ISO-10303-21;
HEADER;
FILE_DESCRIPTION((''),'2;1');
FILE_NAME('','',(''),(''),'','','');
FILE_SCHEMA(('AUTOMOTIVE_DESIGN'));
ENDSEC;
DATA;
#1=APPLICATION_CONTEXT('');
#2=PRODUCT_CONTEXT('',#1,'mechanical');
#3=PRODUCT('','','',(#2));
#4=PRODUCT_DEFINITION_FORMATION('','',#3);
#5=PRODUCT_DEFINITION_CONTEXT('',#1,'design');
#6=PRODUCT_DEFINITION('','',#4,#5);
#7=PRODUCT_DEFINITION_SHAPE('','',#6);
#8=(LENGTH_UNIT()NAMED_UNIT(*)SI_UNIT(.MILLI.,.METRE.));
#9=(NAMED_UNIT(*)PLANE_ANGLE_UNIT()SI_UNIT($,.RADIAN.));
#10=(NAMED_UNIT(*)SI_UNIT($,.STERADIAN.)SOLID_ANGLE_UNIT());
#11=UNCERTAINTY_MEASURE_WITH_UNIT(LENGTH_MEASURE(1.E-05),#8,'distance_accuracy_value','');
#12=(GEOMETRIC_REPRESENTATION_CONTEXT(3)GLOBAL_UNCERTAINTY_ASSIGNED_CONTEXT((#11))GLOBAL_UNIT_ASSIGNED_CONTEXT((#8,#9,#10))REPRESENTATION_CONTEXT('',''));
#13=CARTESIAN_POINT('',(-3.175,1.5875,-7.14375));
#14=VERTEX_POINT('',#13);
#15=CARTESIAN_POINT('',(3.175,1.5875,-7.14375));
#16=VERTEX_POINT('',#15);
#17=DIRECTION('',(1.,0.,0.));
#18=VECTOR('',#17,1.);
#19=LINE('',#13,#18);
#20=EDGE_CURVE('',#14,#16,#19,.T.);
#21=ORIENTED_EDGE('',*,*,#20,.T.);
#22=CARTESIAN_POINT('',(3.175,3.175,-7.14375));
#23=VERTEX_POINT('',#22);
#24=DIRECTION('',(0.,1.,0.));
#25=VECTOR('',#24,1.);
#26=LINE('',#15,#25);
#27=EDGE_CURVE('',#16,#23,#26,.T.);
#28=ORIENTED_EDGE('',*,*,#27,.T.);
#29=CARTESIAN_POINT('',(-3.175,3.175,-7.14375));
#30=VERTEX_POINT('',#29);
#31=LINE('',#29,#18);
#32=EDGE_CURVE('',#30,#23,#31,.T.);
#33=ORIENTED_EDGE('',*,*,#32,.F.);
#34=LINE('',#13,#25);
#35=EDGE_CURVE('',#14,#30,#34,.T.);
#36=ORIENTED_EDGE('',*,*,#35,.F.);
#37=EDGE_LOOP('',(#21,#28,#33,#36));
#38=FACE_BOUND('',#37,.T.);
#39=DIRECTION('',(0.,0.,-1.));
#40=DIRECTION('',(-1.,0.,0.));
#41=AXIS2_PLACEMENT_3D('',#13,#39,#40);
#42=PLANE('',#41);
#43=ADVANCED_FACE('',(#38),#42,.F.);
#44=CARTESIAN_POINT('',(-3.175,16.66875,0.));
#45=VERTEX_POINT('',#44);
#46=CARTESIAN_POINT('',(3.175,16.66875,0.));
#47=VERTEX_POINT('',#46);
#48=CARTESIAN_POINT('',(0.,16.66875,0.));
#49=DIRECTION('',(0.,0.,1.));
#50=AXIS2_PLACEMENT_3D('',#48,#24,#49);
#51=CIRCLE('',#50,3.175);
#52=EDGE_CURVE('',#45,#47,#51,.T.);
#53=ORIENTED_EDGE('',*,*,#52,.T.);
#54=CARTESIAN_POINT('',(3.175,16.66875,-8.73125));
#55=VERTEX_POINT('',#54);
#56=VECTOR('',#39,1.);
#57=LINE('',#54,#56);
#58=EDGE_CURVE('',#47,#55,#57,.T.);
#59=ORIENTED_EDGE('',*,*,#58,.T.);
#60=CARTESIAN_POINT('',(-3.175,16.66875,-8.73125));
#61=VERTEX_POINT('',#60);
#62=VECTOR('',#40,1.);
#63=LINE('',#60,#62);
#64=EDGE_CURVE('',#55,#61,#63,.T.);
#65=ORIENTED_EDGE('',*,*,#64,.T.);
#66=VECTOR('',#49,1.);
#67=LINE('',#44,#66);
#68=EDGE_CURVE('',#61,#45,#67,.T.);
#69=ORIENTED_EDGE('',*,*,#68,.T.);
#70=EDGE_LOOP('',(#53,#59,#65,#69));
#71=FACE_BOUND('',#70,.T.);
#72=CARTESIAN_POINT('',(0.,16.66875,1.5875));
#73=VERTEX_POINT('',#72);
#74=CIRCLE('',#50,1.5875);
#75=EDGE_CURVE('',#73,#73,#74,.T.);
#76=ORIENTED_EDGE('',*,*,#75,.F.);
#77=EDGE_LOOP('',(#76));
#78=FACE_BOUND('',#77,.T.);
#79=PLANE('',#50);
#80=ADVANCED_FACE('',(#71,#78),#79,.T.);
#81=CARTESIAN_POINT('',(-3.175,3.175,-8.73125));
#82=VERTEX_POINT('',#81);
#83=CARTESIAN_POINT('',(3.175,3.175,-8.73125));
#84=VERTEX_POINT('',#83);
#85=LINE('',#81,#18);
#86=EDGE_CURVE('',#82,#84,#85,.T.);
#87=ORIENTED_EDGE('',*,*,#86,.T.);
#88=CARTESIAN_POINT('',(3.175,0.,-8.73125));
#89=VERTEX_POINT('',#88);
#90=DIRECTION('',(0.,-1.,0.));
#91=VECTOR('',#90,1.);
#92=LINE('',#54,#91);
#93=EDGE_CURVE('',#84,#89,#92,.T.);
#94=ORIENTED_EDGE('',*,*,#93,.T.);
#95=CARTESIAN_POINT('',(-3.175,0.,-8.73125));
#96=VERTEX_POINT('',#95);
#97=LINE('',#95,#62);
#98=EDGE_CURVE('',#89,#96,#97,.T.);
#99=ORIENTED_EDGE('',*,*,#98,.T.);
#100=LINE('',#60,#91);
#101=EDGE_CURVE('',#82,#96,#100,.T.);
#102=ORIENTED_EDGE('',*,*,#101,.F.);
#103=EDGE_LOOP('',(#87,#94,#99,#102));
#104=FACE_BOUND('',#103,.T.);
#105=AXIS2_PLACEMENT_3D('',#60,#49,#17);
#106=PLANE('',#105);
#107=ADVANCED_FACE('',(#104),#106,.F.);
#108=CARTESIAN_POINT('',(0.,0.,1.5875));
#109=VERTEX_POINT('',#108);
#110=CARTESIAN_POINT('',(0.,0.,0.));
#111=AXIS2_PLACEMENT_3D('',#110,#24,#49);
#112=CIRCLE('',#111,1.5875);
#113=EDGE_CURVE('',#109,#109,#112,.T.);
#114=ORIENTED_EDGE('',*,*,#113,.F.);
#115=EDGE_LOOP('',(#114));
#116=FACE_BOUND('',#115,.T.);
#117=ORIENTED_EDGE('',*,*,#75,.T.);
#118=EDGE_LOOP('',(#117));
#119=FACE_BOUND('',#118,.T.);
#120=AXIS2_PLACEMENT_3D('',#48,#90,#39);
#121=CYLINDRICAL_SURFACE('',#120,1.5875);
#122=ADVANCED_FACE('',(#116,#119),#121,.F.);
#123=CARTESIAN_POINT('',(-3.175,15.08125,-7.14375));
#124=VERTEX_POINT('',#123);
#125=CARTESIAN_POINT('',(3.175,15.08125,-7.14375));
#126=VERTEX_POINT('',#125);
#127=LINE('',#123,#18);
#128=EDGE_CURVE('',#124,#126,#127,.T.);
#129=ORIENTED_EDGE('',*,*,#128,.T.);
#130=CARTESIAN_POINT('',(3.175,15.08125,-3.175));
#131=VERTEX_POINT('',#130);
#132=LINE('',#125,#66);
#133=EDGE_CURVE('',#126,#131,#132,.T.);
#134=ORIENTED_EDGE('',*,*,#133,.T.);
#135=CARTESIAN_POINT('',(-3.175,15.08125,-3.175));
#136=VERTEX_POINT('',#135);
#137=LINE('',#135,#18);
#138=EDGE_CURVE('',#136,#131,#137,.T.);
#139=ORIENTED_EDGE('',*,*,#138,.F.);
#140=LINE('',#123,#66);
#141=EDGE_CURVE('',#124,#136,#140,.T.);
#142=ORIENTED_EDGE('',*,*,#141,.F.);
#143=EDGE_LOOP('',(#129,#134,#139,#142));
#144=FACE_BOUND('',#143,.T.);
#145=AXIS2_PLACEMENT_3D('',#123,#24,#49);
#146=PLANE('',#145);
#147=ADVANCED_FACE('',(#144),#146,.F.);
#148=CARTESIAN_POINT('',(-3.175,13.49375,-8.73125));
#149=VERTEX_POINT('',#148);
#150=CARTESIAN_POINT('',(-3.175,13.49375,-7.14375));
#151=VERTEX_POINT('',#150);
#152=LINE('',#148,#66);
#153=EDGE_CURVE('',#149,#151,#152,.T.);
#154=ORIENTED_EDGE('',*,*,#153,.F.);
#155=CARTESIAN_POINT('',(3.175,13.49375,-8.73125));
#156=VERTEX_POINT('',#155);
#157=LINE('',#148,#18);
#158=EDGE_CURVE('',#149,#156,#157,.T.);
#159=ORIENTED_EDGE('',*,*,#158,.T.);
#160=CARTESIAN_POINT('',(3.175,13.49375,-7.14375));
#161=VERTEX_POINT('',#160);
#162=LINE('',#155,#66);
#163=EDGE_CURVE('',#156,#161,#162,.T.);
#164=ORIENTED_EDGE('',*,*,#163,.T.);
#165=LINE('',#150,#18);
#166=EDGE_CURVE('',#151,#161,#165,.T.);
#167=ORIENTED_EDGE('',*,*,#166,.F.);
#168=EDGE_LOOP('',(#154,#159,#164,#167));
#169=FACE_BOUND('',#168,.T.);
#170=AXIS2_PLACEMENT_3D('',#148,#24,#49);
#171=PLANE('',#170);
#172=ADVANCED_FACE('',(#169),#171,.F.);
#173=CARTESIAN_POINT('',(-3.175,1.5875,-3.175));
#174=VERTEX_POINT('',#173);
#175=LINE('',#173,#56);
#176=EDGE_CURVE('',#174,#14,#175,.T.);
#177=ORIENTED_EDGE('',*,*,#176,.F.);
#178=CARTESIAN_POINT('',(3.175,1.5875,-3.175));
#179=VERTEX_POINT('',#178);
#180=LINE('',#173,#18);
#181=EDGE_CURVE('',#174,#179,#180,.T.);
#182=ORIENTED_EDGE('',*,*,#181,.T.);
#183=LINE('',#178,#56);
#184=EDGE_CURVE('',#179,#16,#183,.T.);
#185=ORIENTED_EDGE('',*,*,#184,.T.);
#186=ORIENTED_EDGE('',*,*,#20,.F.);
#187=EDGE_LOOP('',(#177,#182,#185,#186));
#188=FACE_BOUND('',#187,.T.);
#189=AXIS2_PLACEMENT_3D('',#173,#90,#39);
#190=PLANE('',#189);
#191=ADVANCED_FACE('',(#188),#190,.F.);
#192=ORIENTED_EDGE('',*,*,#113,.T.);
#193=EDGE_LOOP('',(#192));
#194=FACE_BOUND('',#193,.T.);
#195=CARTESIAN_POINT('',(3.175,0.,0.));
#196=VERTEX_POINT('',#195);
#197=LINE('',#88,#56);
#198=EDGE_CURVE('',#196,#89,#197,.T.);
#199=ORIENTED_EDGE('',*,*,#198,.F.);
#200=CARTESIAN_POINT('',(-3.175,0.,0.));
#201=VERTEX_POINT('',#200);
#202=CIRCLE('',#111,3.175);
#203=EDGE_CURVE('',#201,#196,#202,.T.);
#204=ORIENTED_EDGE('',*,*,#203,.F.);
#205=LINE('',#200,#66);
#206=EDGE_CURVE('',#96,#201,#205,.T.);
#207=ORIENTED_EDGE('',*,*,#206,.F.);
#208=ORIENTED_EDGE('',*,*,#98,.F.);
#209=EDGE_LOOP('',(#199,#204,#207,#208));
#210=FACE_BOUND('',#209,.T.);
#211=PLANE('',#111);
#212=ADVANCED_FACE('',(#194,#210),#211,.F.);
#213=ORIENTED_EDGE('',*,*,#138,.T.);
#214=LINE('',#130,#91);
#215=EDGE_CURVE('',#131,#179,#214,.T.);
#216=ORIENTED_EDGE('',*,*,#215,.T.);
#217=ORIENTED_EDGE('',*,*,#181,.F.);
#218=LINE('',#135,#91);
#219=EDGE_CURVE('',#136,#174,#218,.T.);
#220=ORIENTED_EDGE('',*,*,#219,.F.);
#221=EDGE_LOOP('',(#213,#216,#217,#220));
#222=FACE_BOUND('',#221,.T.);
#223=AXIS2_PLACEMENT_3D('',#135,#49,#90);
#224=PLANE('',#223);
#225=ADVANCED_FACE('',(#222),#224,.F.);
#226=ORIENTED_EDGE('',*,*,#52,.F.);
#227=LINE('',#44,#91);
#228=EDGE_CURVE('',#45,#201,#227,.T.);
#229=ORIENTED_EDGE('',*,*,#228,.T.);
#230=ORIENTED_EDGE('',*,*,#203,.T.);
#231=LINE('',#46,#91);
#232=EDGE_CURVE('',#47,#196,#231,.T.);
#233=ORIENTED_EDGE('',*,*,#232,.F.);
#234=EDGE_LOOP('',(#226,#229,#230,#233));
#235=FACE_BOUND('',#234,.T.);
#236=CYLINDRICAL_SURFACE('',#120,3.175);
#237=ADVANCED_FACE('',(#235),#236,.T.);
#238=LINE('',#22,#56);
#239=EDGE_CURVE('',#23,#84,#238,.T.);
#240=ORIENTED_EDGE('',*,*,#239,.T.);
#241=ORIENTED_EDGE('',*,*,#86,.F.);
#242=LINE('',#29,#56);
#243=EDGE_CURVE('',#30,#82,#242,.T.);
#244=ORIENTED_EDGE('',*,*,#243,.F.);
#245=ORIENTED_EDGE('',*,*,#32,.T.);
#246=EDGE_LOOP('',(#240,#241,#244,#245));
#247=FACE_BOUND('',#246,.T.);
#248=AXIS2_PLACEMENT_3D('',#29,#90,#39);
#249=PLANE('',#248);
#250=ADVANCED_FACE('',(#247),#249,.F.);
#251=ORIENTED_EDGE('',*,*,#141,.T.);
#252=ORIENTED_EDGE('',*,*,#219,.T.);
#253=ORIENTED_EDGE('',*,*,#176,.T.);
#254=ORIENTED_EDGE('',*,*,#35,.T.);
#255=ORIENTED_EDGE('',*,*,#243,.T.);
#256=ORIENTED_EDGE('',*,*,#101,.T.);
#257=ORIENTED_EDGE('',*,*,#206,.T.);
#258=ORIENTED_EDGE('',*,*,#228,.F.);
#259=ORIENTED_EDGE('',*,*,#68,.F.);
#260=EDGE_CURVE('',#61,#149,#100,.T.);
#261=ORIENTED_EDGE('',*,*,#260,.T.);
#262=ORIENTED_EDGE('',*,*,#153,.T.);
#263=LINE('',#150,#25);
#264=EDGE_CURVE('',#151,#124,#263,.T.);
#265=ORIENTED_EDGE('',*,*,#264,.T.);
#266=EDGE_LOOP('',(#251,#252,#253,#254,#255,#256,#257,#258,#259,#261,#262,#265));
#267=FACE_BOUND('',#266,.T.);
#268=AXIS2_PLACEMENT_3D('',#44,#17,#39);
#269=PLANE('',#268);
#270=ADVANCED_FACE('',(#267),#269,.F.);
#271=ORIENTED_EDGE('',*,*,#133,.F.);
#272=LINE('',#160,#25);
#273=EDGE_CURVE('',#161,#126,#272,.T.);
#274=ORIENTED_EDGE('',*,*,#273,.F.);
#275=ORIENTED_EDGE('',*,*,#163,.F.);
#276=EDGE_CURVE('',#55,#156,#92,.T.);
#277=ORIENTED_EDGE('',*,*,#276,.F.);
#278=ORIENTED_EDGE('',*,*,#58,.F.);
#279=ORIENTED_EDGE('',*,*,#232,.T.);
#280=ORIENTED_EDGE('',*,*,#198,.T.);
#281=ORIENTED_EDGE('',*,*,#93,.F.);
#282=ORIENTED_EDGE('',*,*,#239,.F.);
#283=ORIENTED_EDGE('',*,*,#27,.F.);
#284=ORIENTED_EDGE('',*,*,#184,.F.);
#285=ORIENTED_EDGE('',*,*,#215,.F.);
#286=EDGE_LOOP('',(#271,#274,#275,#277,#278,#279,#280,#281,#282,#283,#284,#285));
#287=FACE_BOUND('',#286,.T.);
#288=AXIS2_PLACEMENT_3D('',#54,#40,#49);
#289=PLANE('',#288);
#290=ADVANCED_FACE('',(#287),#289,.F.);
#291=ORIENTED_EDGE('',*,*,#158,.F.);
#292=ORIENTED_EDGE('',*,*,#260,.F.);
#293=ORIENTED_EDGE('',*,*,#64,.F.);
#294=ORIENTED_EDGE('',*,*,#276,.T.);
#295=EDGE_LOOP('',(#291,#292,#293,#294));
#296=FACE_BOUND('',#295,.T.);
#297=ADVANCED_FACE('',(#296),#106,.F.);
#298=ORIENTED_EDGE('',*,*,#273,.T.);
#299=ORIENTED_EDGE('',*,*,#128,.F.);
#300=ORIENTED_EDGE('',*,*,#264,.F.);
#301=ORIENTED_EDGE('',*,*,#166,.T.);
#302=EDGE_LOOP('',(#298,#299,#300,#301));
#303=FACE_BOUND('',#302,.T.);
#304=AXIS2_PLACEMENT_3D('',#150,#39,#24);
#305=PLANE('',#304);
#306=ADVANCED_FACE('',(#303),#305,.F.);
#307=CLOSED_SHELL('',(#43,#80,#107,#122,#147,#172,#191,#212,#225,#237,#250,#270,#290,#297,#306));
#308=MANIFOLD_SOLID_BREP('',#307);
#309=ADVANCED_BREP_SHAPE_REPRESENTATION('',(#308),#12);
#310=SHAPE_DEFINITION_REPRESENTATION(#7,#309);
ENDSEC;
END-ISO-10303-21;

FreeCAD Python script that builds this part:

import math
import FreeCAD as App
import Part
import Sketcher
from FreeCAD import Vector
Q = App.Units.Quantity


def add_polygon(sketch, points):
    """Adds a closed chain of lines whose ends are joined by coincident constraints."""
    first, n = sketch.GeometryCount, len(points)
    for a, b in zip(points, points[1:] + points[:1]):
        sketch.addGeometry(Part.LineSegment(App.Vector(*a, 0), App.Vector(*b, 0)), False)
    for i in range(n):
        sketch.addConstraint(Sketcher.Constraint("Coincident", first + i, 2, first + (i + 1) % n, 1))

doc = App.newDocument("Part")
body = doc.addObject("PartDesign::Body", "Body")

sketch1 = doc.addObject("Sketcher::SketchObject", "Sketch")
body.addObject(sketch1)
sketch1.AttachmentSupport = (doc.XZ_Plane, [""])
sketch1.MapMode = "FlatFace"
sketch1.addGeometry([
    Part.LineSegment(Vector(-3.175, -8.73125, 0), Vector(-3.175, 0, 0)),
    Part.ArcOfCircle(Part.Circle(Vector(0, 0, 0), Vector(0, 0, 1), 3.175), math.radians(0), math.radians(180)),
    Part.LineSegment(Vector(3.175, 0, 0), Vector(3.175, -8.73125, 0)),
    Part.LineSegment(Vector(3.175, -8.73125, 0), Vector(-3.175, -8.73125, 0)),
    Part.Circle(Vector(0, 0, 0), Vector(0, 0, 1), 1.5875),
], False)
sketch1.addConstraint([
    Sketcher.Constraint("Tangent", 0, 2, 1, 2),
    Sketcher.Constraint("Tangent", 1, 1, 2, 1),
    Sketcher.Constraint("Coincident", 2, 2, 3, 1),
    Sketcher.Constraint("Coincident", 3, 2, 0, 1),
    Sketcher.Constraint("Vertical", 0),
    Sketcher.Constraint("Vertical", 2),
    Sketcher.Constraint("Horizontal", 3),
    Sketcher.Constraint("Coincident", 1, 3, -1, 1),
    Sketcher.Constraint("Coincident", 4, 3, -1, 1),
    Sketcher.Constraint("Diameter", 4, Q("0.125 in")),
    Sketcher.Constraint("Radius", 1, Q("0.125 in")),
    Sketcher.Constraint("DistanceY", 0, 1, 0, 2, Q("0.34375 in")),
])
pad1 = doc.addObject("PartDesign::Pad", "Pad")
body.addObject(pad1)
pad1.Profile = sketch1
pad1.Length = Q("0.65625 in")
pad1.Reversed = True

sketch2 = doc.addObject("Sketcher::SketchObject", "Sketch001")
body.addObject(sketch2)
sketch2.AttachmentSupport = (doc.YZ_Plane, [""])
sketch2.MapMode = "FlatFace"
sketch2.AttachmentOffset = App.Placement(Vector(0, 0, 0.125 * 25.4), App.Rotation())
add_polygon(sketch2, [(13.49375, -8.73125), (13.49375, -7.14375), (15.08125, -7.14375), (15.08125, -3.175), (1.5875, -3.175), (1.5875, -7.14375), (3.175, -7.14375), (3.175, -8.73125)])
sketch2.addConstraint([
    Sketcher.Constraint("Vertical", 0),
    Sketcher.Constraint("Horizontal", 1),
    Sketcher.Constraint("Vertical", 2),
    Sketcher.Constraint("Horizontal", 3),
    Sketcher.Constraint("Vertical", 4),
    Sketcher.Constraint("Horizontal", 5),
    Sketcher.Constraint("Vertical", 6),
    Sketcher.Constraint("Horizontal", 7),
    Sketcher.Constraint("Horizontal", 1, 2, 4, 2),
    Sketcher.Constraint("Equal", 1, 5),
    Sketcher.Constraint("Equal", 5, 0),
    Sketcher.Constraint("DistanceX", 1, 1, 1, 2, Q("0.0625 in")),
    Sketcher.Constraint("DistanceX", 3, 2, 3, 1, Q("0.53125 in")),
    Sketcher.Constraint("DistanceY", 2, 1, 2, 2, Q("0.15625 in")),
    Sketcher.Constraint("DistanceX", -1, 1, 0, 2, Q("0.53125 in")),
    Sketcher.Constraint("DistanceY", 0, 2, -1, 1, Q("0.28125 in")),
])
pocket1 = doc.addObject("PartDesign::Pocket", "Pocket")
body.addObject(pocket1)
pocket1.Profile = sketch2
pocket1.Type = "ThroughAll"

doc.recompute()
